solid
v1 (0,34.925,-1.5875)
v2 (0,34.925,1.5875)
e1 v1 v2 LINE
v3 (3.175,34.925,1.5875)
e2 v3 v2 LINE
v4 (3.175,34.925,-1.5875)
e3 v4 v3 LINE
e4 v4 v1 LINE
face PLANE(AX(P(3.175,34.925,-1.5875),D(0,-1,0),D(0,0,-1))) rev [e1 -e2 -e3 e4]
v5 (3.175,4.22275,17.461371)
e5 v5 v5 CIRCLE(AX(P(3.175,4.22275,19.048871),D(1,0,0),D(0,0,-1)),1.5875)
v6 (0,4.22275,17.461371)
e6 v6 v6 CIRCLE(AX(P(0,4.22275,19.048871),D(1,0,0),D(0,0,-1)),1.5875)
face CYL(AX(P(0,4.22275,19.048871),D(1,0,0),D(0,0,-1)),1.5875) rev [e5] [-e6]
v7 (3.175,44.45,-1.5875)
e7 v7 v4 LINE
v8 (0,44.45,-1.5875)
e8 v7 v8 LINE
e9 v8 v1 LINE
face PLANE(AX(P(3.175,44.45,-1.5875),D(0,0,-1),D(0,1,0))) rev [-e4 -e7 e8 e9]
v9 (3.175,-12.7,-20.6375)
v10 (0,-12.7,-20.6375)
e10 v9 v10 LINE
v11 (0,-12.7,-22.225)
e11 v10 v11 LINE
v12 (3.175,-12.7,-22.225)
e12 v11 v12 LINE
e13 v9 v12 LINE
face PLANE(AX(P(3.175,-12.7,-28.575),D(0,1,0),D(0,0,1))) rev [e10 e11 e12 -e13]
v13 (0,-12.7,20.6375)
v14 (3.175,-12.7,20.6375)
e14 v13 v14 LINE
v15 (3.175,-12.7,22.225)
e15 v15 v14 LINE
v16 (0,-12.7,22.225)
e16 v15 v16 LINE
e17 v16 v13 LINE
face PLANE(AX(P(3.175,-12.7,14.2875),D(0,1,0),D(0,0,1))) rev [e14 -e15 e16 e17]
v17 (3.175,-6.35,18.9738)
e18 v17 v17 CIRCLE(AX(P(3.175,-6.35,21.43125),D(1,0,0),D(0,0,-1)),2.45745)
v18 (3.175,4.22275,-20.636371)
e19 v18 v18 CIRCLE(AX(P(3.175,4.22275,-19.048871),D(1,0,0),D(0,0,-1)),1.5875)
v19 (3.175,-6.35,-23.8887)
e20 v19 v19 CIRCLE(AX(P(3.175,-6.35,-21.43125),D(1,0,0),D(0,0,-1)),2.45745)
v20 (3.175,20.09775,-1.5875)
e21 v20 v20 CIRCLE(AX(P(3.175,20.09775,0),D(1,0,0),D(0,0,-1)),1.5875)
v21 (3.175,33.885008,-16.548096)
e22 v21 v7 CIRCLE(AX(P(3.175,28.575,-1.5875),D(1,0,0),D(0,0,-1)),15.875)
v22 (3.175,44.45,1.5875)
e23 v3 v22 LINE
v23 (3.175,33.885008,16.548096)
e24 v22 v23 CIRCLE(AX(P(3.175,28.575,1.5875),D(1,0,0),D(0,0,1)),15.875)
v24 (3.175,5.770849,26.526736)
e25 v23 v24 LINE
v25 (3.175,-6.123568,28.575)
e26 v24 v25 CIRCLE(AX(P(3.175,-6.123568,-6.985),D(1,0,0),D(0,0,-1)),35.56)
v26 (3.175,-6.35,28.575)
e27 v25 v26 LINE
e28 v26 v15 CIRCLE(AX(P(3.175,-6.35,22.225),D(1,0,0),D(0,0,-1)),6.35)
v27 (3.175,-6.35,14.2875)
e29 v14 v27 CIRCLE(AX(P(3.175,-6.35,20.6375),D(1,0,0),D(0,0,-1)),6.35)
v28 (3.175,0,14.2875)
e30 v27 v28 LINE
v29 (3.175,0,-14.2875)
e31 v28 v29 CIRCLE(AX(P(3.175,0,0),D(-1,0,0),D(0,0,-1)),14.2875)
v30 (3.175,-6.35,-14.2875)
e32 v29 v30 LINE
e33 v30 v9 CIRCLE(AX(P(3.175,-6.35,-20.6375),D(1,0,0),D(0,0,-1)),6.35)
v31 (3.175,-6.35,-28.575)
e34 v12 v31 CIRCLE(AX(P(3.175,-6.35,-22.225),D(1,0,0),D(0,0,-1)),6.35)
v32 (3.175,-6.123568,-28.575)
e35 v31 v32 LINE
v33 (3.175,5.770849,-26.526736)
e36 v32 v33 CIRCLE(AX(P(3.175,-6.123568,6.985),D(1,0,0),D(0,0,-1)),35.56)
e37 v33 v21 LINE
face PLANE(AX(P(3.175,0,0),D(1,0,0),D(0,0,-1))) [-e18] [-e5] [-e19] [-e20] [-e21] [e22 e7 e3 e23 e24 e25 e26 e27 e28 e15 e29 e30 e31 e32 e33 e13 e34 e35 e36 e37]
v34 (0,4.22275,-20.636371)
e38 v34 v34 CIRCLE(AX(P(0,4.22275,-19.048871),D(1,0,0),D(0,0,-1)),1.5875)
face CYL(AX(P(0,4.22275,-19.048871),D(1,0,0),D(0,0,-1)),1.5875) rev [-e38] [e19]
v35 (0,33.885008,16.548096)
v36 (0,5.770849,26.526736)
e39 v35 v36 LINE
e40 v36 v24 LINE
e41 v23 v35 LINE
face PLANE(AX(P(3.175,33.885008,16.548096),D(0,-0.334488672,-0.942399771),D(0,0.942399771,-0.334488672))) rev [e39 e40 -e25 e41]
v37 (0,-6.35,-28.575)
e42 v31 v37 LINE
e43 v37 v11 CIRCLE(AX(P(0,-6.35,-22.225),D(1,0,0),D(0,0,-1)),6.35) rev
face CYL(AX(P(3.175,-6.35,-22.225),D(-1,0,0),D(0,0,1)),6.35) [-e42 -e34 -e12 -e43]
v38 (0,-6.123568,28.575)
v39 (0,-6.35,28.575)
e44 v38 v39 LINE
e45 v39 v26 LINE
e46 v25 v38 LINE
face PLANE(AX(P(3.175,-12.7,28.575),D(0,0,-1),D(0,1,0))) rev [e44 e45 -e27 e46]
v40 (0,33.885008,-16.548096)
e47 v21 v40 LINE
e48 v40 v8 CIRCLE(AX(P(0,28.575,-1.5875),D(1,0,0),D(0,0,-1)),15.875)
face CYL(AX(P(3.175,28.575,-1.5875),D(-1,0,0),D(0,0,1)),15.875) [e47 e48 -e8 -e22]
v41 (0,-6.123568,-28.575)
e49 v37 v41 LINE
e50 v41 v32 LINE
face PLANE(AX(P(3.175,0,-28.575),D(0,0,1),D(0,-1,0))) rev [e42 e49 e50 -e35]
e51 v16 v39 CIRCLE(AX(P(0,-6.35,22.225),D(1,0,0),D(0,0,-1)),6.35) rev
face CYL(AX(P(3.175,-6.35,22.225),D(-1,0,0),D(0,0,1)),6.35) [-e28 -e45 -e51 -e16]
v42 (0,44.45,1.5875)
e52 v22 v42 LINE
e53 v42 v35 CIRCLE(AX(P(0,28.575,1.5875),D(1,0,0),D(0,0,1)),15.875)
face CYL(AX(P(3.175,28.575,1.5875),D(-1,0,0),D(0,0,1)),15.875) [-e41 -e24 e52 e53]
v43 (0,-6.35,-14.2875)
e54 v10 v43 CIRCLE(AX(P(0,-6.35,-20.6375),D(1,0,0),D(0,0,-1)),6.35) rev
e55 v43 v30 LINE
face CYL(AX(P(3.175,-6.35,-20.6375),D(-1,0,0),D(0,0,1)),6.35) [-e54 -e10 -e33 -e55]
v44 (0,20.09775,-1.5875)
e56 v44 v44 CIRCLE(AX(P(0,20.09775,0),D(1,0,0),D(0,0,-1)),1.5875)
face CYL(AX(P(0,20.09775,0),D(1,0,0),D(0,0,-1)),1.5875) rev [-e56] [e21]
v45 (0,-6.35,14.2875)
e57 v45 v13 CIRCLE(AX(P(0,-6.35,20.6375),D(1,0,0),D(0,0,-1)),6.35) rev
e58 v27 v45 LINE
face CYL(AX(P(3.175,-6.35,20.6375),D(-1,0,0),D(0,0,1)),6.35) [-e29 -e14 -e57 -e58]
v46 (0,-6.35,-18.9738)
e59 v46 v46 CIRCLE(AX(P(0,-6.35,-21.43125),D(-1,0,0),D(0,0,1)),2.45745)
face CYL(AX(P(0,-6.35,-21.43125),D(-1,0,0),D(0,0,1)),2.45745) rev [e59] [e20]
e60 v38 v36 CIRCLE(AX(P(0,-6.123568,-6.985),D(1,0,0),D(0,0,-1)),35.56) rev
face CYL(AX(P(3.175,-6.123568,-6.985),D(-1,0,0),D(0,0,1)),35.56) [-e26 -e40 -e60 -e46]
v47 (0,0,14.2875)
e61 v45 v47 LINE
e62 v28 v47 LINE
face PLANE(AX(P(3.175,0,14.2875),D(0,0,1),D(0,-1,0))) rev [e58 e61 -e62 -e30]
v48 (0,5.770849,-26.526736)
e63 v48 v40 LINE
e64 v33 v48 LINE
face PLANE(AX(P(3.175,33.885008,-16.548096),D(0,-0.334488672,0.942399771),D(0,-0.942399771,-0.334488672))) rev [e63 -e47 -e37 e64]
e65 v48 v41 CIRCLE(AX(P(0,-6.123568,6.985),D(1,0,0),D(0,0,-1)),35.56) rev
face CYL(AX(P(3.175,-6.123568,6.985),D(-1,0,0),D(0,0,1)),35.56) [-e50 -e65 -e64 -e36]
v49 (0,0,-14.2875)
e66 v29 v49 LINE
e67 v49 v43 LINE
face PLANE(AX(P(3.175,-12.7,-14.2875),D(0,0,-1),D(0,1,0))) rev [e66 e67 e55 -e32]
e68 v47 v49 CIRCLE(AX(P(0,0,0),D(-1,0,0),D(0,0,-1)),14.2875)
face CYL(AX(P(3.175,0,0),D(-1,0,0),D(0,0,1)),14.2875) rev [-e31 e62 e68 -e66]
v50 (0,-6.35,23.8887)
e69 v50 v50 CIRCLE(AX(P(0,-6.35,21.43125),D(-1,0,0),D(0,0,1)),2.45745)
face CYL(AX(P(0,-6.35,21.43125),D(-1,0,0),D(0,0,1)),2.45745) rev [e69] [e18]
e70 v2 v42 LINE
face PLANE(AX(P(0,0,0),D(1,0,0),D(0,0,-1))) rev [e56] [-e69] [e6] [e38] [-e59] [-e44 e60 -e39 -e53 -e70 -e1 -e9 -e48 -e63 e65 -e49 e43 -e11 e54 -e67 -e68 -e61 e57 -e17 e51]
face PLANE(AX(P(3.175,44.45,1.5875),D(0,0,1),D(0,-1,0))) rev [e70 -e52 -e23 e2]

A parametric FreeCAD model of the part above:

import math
import FreeCAD as App
import Part
import Sketcher

V = App.Vector
Q = App.Units.Quantity


def edges_at(feature, points):
    """Names of the edges that pass closest to the given points."""
    edges = feature.Shape.Edges
    near = lambda p: min(range(len(edges)), key=lambda i: edges[i].distToShape(Part.Vertex(*p))[0])
    return sorted({f"Edge{near(p) + 1}" for p in points})

doc = App.newDocument("Part")
params = doc.addObject("Spreadsheet::Sheet", "Params")
for row, (alias, value) in enumerate([
    ("sketch1_width", "0.5 in"),
    ("sketch1_radius", "0.625 in"),
    ("sketch1_radius2", "0.5625 in"),
    ("sketch1_width2", "0.375 in"),
    ("sketch1_height", "0.5625 in"),
    ("pad1_length", "0.125 in"),
    ("hole_diameter", "0.1935 in"),
    ("hole_depth", "19.001994 mm"),
    ("sketch3_diameter", "0.125 in"),
    ("fillet_radius", "1.4 in"),
    ("fillet2_radius", "0.25 in"),
], start=1):
    params.set(f"A{row}", alias)
    params.set(f"B{row}", "=" + value)
    params.setAlias(f"B{row}", alias)

body = doc.addObject("PartDesign::Body", "Body")

# Sketch on YZ plane
sketch1 = body.newObject("Sketcher::SketchObject", "Sketch")
sketch1.AttachmentSupport = (doc.getObject("YZ_Plane"), [""])
sketch1.MapMode = "FlatFace"
sketch1.addGeometry([
    Part.LineSegment(V(44.5, -1.6, 0), V(34.9, -1.6, 0)),  # 0
    Part.LineSegment(V(34.9, -1.6, 0), V(34.9, 1.6, 0)),  # 1
    Part.LineSegment(V(34.9, 1.6, 0), V(44.5, 1.6, 0)),  # 2
    Part.ArcOfCircle(Part.Circle(V(28.6, 1.6, 0), V(0, 0, 1), 15.9), math.radians(0), math.radians(70)),  # 3
    Part.LineSegment(V(33.9, 16.5, 0), V(0, 28.6, 0)),  # 4
    Part.LineSegment(V(0, 28.6, 0), V(-12.7, 28.6, 0)),  # 5
    Part.LineSegment(V(-12.7, 28.6, 0), V(-12.7, 14.3, 0)),  # 6
    Part.LineSegment(V(-12.7, 14.3, 0), V(0, 14.3, 0)),  # 7
    Part.ArcOfCircle(Part.Circle(V(0, 0, 0), V(0, 0, 1), 14.3), math.radians(-90), math.radians(90)),  # 8
    Part.LineSegment(V(0, -14.3, 0), V(-12.7, -14.3, 0)),  # 9
    Part.LineSegment(V(-12.7, -14.3, 0), V(-12.7, -28.6, 0)),  # 10
    Part.LineSegment(V(-12.7, -28.6, 0), V(0, -28.6, 0)),  # 11
    Part.LineSegment(V(0, -28.6, 0), V(33.9, -16.5, 0)),  # 12
    Part.ArcOfCircle(Part.Circle(V(28.6, -1.6, 0), V(0, 0, 1), 15.9), math.radians(-70), math.radians(0)),  # 13
], False)
sketch1.addConstraint([
    Sketcher.Constraint("Coincident", 0, 2, 1, 1),
    Sketcher.Constraint("Coincident", 1, 2, 2, 1),
    Sketcher.Constraint("Coincident", 2, 2, 3, 1),
    Sketcher.Constraint("Tangent", 3, 2, 4, 1),
    Sketcher.Constraint("Coincident", 4, 2, 5, 1),
    Sketcher.Constraint("Coincident", 5, 2, 6, 1),
    Sketcher.Constraint("Coincident", 6, 2, 7, 1),
    Sketcher.Constraint("Tangent", 7, 2, 8, 2),
    Sketcher.Constraint("Tangent", 8, 1, 9, 1),
    Sketcher.Constraint("Coincident", 9, 2, 10, 1),
    Sketcher.Constraint("Coincident", 10, 2, 11, 1),
    Sketcher.Constraint("Coincident", 11, 2, 12, 1),
    Sketcher.Constraint("Tangent", 12, 2, 13, 1),
    Sketcher.Constraint("Coincident", 13, 2, 0, 1),
    Sketcher.Constraint("Horizontal", 0),
    Sketcher.Constraint("Vertical", 1),
    Sketcher.Constraint("Horizontal", 2),
    Sketcher.Constraint("Horizontal", 5),
    Sketcher.Constraint("Vertical", 6),
    Sketcher.Constraint("Horizontal", 7),
    Sketcher.Constraint("Horizontal", 9),
    Sketcher.Constraint("Vertical", 10),
    Sketcher.Constraint("Horizontal", 11),
    Sketcher.Constraint("Coincident", 8, 3, -1, 1),
    Sketcher.Constraint("Equal", 3, 13),
    Sketcher.Constraint("Symmetric", 4, 2, 11, 2, -1, 1),
    Sketcher.Constraint("Symmetric", 3, 3, 13, 3, -1),
    Sketcher.Constraint("PointOnObject", 4, 2, -2),
    Sketcher.Constraint("Horizontal", 13, 3, 0, 2),
    Sketcher.Constraint("Horizontal", 3, 3, 1, 2),
    Sketcher.Constraint("Vertical", 6, 2, 9, 2),
    Sketcher.Constraint("DistanceX", 5, 2, 5, 1, Q("0.5 in")),
    Sketcher.Constraint("Radius", 3, Q("0.625 in")),
    Sketcher.Constraint("Radius", 8, Q("0.5625 in")),
    Sketcher.Constraint("DistanceY", 3, 3, 6, 2, Q("0.5 in")),
    Sketcher.Constraint("DistanceX", 0, 2, 0, 1, Q("0.375 in")),
    Sketcher.Constraint("DistanceY", 6, 2, 6, 1, Q("0.5625 in")),
    Sketcher.Constraint("DistanceX", -1, 1, 2, 2, Q("1.75 in")),
])
sketch1.setExpression("Constraints[31]", "Params.sketch1_width")
sketch1.setExpression("Constraints[32]", "Params.sketch1_radius")
sketch1.setExpression("Constraints[33]", "Params.sketch1_radius2")
sketch1.setExpression("Constraints[35]", "Params.sketch1_width2")
sketch1.setExpression("Constraints[36]", "Params.sketch1_height")
pad1 = body.newObject("PartDesign::Pad", "Pad")
pad1.Profile = sketch1
pad1.setExpression("Length", "Params.pad1_length")

# Sketch on YZ plane
sketch2 = body.newObject("Sketcher::SketchObject", "Sketch001")
sketch2.AttachmentSupport = (doc.getObject("YZ_Plane"), [""])
sketch2.MapMode = "FlatFace"
sketch2.addGeometry([
    Part.Circle(V(-6.3, -21.4, 0), V(0, 0, 1), 2.5),
    Part.Circle(V(-6.3, 21.4, 0), V(0, 0, 1), 2.5),
], False)
sketch2.addConstraint([
    Sketcher.Constraint("Equal", 0, 1),
    Sketcher.Constraint("Symmetric", 0, 3, 1, 3, -1),
    Sketcher.Constraint("Diameter", 0, Q("0.1935 in")),
    Sketcher.Constraint("DistanceX", 0, 3, -1, 1, Q("0.25 in")),
    Sketcher.Constraint("DistanceY", 0, 3, -1, 1, Q("0.84375 in")),
])
doc.recompute()
hole = body.newObject("PartDesign::Hole", "Hole")
hole.Profile = sketch2
hole.ThreadType = "None"
hole.setExpression("Diameter", "Params.hole_diameter")
hole.DepthType = "Dimension"
hole.setExpression("Depth", "Params.hole_depth")
hole.DrillPoint = "Angled"
hole.DrillPointAngle = 118
hole.Reversed = True

# Sketch on YZ plane
sketch3 = body.newObject("Sketcher::SketchObject", "Sketch002")
sketch3.AttachmentSupport = (doc.getObject("YZ_Plane"), [""])
sketch3.MapMode = "FlatFace"
sketch3.AttachmentOffset = App.Placement(V(0, 0, 0.125 * 25.4), App.Rotation())
sketch3.addGeometry([
    Part.Circle(V(20.1, 0, 0), V(0, 0, 1), 1.6),
    Part.Circle(V(4.2, 19, 0), V(0, 0, 1), 1.6),
    Part.Circle(V(4.2, -19, 0), V(0, 0, 1), 1.6),
], False)
sketch3.addConstraint([
    Sketcher.Constraint("Equal", 0, 1),
    Sketcher.Constraint("Equal", 1, 2),
    Sketcher.Constraint("Symmetric", 1, 3, 2, 3, -1),
    Sketcher.Constraint("PointOnObject", 0, 3, -1),
    Sketcher.Constraint("Diameter", 0, Q("0.125 in")),
    Sketcher.Constraint("DistanceX", 1, 3, 0, 3, Q("0.625 in")),
    Sketcher.Constraint("DistanceX", -1, 1, 0, 3, Q("20.09775 mm")),
    Sketcher.Constraint("DistanceY", -1, 1, 1, 3, Q("19.048871 mm")),
])
sketch3.setExpression("Constraints[4]", "Params.sketch3_diameter")
pocket1 = body.newObject("PartDesign::Pocket", "Pocket")
pocket1.Profile = sketch3
pocket1.Type = "ThroughAll"
doc.recompute()

fillet = body.newObject("PartDesign::Fillet", "Fillet")
fillet.Base = (pocket1, edges_at(pocket1, [(1.587, 0, 28.575), (1.587, 0, -28.575)]))
fillet.setExpression("Radius", "Params.fillet_radius")
doc.recompute()

fillet2 = body.newObject("PartDesign::Fillet", "Fillet001")
fillet2.Base = (fillet, edges_at(fillet, [
    (1.587, -12.7, 14.287),
    (1.587, -12.7, 28.575),
    (1.587, -12.7, -28.575),
    (1.587, -12.7, -14.287),
]))
fillet2.setExpression("Radius", "Params.fillet2_radius")

doc.recompute()
